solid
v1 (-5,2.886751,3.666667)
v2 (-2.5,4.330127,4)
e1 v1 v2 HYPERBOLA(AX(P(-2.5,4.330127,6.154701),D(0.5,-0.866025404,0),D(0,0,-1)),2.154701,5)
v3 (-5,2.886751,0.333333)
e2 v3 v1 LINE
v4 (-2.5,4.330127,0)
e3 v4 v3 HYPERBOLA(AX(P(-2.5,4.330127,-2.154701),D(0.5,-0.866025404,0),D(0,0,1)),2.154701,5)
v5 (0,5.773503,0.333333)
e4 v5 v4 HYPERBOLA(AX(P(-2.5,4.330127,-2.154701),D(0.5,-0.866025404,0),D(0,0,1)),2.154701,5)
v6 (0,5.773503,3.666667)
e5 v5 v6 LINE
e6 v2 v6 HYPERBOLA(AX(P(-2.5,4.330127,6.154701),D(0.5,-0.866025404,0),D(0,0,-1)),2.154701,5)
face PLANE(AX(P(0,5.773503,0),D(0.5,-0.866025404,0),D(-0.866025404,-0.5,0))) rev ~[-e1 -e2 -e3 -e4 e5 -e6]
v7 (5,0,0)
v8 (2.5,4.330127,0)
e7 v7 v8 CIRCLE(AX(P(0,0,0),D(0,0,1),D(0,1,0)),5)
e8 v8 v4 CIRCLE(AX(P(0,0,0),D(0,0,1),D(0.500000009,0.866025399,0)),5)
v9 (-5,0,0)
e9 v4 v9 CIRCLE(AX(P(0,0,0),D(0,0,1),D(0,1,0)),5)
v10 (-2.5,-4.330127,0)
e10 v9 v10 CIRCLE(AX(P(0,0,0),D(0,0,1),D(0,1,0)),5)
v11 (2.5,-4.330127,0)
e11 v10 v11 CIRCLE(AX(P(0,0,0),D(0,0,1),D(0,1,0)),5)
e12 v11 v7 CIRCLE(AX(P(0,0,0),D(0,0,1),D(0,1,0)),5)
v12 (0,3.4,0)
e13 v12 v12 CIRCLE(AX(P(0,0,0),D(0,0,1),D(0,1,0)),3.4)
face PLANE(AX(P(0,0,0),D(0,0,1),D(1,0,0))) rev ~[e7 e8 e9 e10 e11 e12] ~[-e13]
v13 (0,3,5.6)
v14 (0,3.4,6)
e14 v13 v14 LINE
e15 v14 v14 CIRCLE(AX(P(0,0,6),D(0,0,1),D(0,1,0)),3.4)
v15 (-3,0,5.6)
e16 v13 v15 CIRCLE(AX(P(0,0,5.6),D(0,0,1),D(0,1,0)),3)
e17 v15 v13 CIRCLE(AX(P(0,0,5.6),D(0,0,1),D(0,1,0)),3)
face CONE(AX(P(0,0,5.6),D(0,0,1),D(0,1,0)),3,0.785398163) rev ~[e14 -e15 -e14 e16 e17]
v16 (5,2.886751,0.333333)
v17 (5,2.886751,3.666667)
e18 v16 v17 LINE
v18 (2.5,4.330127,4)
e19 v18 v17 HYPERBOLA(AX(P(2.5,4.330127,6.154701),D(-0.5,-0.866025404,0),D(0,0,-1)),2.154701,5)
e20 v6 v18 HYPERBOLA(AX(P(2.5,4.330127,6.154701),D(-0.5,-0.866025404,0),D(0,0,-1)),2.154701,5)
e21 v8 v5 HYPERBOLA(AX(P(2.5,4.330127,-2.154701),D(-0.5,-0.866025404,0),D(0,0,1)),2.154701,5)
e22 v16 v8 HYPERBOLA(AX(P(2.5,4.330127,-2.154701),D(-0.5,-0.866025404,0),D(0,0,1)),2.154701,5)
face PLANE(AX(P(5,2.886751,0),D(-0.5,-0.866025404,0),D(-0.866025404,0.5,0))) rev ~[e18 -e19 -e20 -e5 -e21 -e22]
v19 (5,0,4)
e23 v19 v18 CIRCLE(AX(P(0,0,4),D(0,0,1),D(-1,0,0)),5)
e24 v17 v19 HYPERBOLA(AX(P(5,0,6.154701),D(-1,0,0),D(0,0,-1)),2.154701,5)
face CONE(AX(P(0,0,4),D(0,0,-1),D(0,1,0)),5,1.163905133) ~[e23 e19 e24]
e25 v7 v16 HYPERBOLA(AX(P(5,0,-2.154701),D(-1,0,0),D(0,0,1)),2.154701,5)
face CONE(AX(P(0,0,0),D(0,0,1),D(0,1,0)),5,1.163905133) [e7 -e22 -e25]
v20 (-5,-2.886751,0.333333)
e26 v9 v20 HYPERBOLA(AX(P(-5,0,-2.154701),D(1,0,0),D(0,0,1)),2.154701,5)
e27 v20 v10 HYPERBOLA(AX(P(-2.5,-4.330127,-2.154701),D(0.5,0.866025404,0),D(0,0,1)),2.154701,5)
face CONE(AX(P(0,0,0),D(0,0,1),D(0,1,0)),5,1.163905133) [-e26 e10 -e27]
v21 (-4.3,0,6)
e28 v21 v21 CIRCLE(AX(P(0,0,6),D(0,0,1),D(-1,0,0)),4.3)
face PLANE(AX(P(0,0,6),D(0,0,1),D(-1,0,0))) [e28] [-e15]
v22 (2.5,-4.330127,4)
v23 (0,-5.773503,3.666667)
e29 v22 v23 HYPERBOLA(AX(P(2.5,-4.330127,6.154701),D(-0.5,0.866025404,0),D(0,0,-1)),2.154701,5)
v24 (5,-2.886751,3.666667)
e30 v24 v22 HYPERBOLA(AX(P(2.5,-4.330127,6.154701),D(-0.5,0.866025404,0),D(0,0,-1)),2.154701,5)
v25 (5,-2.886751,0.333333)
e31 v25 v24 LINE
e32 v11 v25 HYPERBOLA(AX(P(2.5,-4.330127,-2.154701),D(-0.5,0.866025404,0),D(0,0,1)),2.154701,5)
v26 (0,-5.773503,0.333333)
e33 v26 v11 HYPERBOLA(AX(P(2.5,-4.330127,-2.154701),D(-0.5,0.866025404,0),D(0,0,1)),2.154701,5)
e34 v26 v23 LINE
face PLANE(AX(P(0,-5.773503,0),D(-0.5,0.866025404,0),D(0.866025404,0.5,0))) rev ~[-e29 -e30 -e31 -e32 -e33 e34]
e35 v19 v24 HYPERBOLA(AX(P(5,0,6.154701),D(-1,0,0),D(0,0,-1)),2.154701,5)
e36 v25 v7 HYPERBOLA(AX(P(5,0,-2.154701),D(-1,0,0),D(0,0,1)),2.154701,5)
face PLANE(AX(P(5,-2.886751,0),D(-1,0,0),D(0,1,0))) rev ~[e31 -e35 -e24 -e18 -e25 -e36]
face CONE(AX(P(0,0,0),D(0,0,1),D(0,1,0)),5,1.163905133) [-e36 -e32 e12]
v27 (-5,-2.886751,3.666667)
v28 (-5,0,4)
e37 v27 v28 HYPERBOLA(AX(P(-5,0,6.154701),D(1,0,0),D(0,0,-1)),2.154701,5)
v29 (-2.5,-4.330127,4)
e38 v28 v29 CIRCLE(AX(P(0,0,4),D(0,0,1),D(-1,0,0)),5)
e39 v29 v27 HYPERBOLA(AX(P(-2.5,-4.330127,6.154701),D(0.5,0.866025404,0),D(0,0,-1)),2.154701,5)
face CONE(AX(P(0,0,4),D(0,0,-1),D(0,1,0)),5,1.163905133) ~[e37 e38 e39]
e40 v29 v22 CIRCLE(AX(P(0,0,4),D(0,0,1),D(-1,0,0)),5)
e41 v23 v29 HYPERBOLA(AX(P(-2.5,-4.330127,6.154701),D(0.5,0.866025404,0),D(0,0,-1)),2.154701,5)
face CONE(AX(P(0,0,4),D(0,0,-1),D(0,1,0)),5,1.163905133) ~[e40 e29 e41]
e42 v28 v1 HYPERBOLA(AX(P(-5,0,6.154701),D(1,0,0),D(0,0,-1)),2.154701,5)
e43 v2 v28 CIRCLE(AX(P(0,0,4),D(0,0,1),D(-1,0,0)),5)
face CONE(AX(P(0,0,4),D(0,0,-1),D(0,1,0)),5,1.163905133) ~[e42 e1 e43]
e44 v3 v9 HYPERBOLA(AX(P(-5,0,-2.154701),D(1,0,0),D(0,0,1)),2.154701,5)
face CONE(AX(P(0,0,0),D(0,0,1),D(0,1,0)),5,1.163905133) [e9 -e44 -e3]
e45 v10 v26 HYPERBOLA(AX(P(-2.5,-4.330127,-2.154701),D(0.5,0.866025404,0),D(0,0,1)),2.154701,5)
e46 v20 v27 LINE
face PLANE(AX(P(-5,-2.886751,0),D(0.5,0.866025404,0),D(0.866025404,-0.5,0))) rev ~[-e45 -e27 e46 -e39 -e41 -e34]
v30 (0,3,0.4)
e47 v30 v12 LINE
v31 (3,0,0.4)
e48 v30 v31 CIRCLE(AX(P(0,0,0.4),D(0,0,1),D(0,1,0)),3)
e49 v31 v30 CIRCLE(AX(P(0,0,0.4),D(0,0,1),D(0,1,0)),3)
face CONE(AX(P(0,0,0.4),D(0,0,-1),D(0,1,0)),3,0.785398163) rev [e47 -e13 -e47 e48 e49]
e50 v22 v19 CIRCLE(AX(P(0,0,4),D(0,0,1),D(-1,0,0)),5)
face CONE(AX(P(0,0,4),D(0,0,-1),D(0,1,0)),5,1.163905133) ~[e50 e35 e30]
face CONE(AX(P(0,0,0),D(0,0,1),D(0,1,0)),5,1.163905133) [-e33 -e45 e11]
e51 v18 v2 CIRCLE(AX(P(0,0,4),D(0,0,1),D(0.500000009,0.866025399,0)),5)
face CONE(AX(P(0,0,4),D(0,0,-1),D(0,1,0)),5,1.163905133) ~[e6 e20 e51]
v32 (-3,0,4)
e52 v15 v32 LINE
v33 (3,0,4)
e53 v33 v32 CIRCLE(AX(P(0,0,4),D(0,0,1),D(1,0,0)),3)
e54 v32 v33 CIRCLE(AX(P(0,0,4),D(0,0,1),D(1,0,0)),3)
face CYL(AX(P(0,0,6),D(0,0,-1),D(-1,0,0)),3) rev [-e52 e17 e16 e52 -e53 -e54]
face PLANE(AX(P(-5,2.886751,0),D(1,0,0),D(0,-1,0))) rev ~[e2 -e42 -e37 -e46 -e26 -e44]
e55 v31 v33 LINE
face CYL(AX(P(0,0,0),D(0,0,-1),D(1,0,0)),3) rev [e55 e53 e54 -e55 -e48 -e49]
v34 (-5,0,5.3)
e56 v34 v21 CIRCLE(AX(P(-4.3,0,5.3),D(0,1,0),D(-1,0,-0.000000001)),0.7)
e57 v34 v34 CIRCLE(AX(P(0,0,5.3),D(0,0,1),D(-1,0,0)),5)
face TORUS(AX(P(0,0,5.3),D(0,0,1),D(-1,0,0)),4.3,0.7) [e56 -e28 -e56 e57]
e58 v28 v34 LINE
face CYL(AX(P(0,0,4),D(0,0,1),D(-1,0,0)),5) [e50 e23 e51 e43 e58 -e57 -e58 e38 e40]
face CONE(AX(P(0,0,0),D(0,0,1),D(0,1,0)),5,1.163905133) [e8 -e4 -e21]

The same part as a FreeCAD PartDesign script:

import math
import FreeCAD as App
import Part
import Sketcher

V = App.Vector
Q = App.Units.Quantity

doc = App.newDocument("Part")
body = doc.addObject("PartDesign::Body", "Body")

# Sketch on XY plane
sketch1 = body.newObject("Sketcher::SketchObject", "Sketch")
sketch1.AttachmentSupport = (doc.getObject("XY_Plane"), [""])
sketch1.MapMode = "FlatFace"
sketch1.addGeometry(Part.LineSegment(V(0, -5.773503, 0), V(5, -2.886751, 0)), False)
sketch1.addGeometry(Part.LineSegment(V(5, -2.886751, 0), V(5, 2.886751, 0)), False)
sketch1.addGeometry(Part.LineSegment(V(5, 2.886751, 0), V(0, 5.773503, 0)), False)
sketch1.addGeometry(Part.LineSegment(V(0, 5.773503, 0), V(-5, 2.886751, 0)), False)
sketch1.addGeometry(Part.LineSegment(V(-5, 2.886751, 0), V(-5, -2.886751, 0)), False)
sketch1.addGeometry(Part.LineSegment(V(-5, -2.886751, 0), V(0, -5.773503, 0)), False)
sketch1.addGeometry(Part.Circle(V(0, 0, 0), V(0, 0, 1), 3), False)
sketch1.addConstraint(Sketcher.Constraint("Coincident", 0, 2, 1, 1))
sketch1.addConstraint(Sketcher.Constraint("Coincident", 1, 2, 2, 1))
sketch1.addConstraint(Sketcher.Constraint("Coincident", 2, 2, 3, 1))
sketch1.addConstraint(Sketcher.Constraint("Coincident", 3, 2, 4, 1))
sketch1.addConstraint(Sketcher.Constraint("Coincident", 4, 2, 5, 1))
sketch1.addConstraint(Sketcher.Constraint("Coincident", 5, 2, 0, 1))
sketch1.addConstraint(Sketcher.Constraint("Vertical", 1))
sketch1.addConstraint(Sketcher.Constraint("Vertical", 4))
sketch1.addConstraint(Sketcher.Constraint("Coincident", 6, 3, -1, 1))
sketch1.addConstraint(Sketcher.Constraint("Symmetric", 0, 2, 3, 2, -1, 1))
sketch1.addConstraint(Sketcher.Constraint("Symmetric", 2, 2, 5, 2, -1, 1))
sketch1.addConstraint(Sketcher.Constraint("PointOnObject", 2, 2, -2))
sketch1.addConstraint(Sketcher.Constraint("Parallel", 2, 5))
sketch1.addConstraint(Sketcher.Constraint("Horizontal", 1, 2, 3, 2))
sketch1.addConstraint(Sketcher.Constraint("Diameter", 6, Q("6 mm")))
sketch1.addConstraint(Sketcher.Constraint("Angle", 0, Q("30 deg")))
sketch1.addConstraint(Sketcher.Constraint("DistanceX", -1, 1, 0, 2, Q("5 mm")))
sketch1.addConstraint(Sketcher.Constraint("DistanceY", 1, 1, 1, 2, Q("5.773503 mm")))
pad1 = body.newObject("PartDesign::Pad", "Pad")
pad1.Profile = sketch1
pad1.Length = 4

# Sketch on XZ plane
sketch2 = body.newObject("Sketcher::SketchObject", "Sketch001")
sketch2.AttachmentSupport = (doc.getObject("XZ_Plane"), [""])
sketch2.MapMode = "FlatFace"
sketch2.addGeometry(Part.LineSegment(V(-5, 4, 0), V(-5, 5.3, 0)), False)
sketch2.addGeometry(Part.ArcOfCircle(Part.Circle(V(-4.3, 5.3, 0), V(0, 0, 1), 0.7), math.radians(90), math.radians(180)), False)
sketch2.addGeometry(Part.LineSegment(V(-4.3, 6, 0), V(-3, 6, 0)), False)
sketch2.addGeometry(Part.LineSegment(V(-3, 6, 0), V(-3, 4, 0)), False)
sketch2.addGeometry(Part.LineSegment(V(-3, 4, 0), V(-5, 4, 0)), False)
sketch2.addConstraint(Sketcher.Constraint("Tangent", 0, 2, 1, 2))
sketch2.addConstraint(Sketcher.Constraint("Tangent", 1, 1, 2, 1))
sketch2.addConstraint(Sketcher.Constraint("Coincident", 2, 2, 3, 1))
sketch2.addConstraint(Sketcher.Constraint("Coincident", 3, 2, 4, 1))
sketch2.addConstraint(Sketcher.Constraint("Coincident", 4, 2, 0, 1))
sketch2.addConstraint(Sketcher.Constraint("Vertical", 0))
sketch2.addConstraint(Sketcher.Constraint("Horizontal", 2))
sketch2.addConstraint(Sketcher.Constraint("Vertical", 3))
sketch2.addConstraint(Sketcher.Constraint("Horizontal", 4))
sketch2.addConstraint(Sketcher.Constraint("Equal", 2, 0))
sketch2.addConstraint(Sketcher.Constraint("Radius", 1, Q("0.7 mm")))
sketch2.addConstraint(Sketcher.Constraint("DistanceX", 4, 2, 4, 1, Q("2 mm")))
sketch2.addConstraint(Sketcher.Constraint("DistanceX", 0, 2, -1, 1, Q("5 mm")))
sketch2.addConstraint(Sketcher.Constraint("DistanceY", -1, 1, 1, 1, Q("6 mm")))
revolution = body.newObject("PartDesign::Revolution", "Revolution")
revolution.Profile = sketch2
revolution.ReferenceAxis = (sketch2, ["V_Axis"])
revolution.Angle = 360

# Sketch on YZ plane
sketch3 = body.newObject("Sketcher::SketchObject", "Sketch002")
sketch3.AttachmentSupport = (doc.getObject("YZ_Plane"), [""])
sketch3.MapMode = "FlatFace"
sketch3.addGeometry(Part.LineSegment(V(5.773503, 4, 0), V(5, 4, 0)), False)
sketch3.addGeometry(Part.LineSegment(V(5, 4, 0), V(5.773503, 3.666667, 0)), False)
sketch3.addGeometry(Part.LineSegment(V(5.773503, 3.666667, 0), V(5.773503, 4, 0)), False)
sketch3.addGeometry(Part.LineSegment(V(5.773503, 0, 0), V(5.773503, 0.333333, 0)), False)
sketch3.addGeometry(Part.LineSegment(V(5.773503, 0.333333, 0), V(5, 0, 0)), False)
sketch3.addGeometry(Part.LineSegment(V(5, 0, 0), V(5.773503, 0, 0)), False)
sketch3.addGeometry(Part.LineSegment(V(3, 6, 0), V(3, 5.6, 0)), False)
sketch3.addGeometry(Part.LineSegment(V(3, 5.6, 0), V(3.4, 6, 0)), False)
sketch3.addGeometry(Part.LineSegment(V(3.4, 6, 0), V(3, 6, 0)), False)
sketch3.addGeometry(Part.LineSegment(V(3, 0.4, 0), V(3, 0, 0)), False)
sketch3.addGeometry(Part.LineSegment(V(3, 0, 0), V(3.4, 0, 0)), False)
sketch3.addGeometry(Part.LineSegment(V(3.4, 0, 0), V(3, 0.4, 0)), False)
sketch3.addConstraint(Sketcher.Constraint("Coincident", 0, 2, 1, 1))
sketch3.addConstraint(Sketcher.Constraint("Coincident", 1, 2, 2, 1))
sketch3.addConstraint(Sketcher.Constraint("Coincident", 2, 2, 0, 1))
sketch3.addConstraint(Sketcher.Constraint("Coincident", 3, 2, 4, 1))
sketch3.addConstraint(Sketcher.Constraint("Coincident", 4, 2, 5, 1))
sketch3.addConstraint(Sketcher.Constraint("Coincident", 5, 2, 3, 1))
sketch3.addConstraint(Sketcher.Constraint("Coincident", 6, 2, 7, 1))
sketch3.addConstraint(Sketcher.Constraint("Coincident", 7, 2, 8, 1))
sketch3.addConstraint(Sketcher.Constraint("Coincident", 8, 2, 6, 1))
sketch3.addConstraint(Sketcher.Constraint("Coincident", 9, 2, 10, 1))
sketch3.addConstraint(Sketcher.Constraint("Coincident", 10, 2, 11, 1))
sketch3.addConstraint(Sketcher.Constraint("Coincident", 11, 2, 9, 1))
sketch3.addConstraint(Sketcher.Constraint("Horizontal", 0))
sketch3.addConstraint(Sketcher.Constraint("Vertical", 2))
sketch3.addConstraint(Sketcher.Constraint("Vertical", 3))
sketch3.addConstraint(Sketcher.Constraint("Horizontal", 5))
sketch3.addConstraint(Sketcher.Constraint("Vertical", 6))
sketch3.addConstraint(Sketcher.Constraint("Horizontal", 8))
sketch3.addConstraint(Sketcher.Constraint("Vertical", 9))
sketch3.addConstraint(Sketcher.Constraint("Horizontal", 10))
sketch3.addConstraint(Sketcher.Constraint("PointOnObject", 4, 2, -1))
sketch3.addConstraint(Sketcher.Constraint("PointOnObject", 9, 2, -1))
sketch3.addConstraint(Sketcher.Constraint("Perpendicular", 7, 11))
sketch3.addConstraint(Sketcher.Constraint("Vertical", 2, 2, 3, 2))
sketch3.addConstraint(Sketcher.Constraint("Vertical", 0, 2, 4, 2))
sketch3.addConstraint(Sketcher.Constraint("Vertical", 8, 2, 9, 2))
sketch3.addConstraint(Sketcher.Constraint("Vertical", 7, 2, 10, 2))
sketch3.addConstraint(Sketcher.Constraint("Equal", 2, 3))
sketch3.addConstraint(Sketcher.Constraint("Equal", 10, 6))
sketch3.addConstraint(Sketcher.Constraint("DistanceX", 8, 2, 8, 1, Q("0.4 mm")))
sketch3.addConstraint(Sketcher.Constraint("DistanceX", -1, 1, 0, 2, Q("5 mm")))
sketch3.addConstraint(Sketcher.Constraint("DistanceY", -1, 1, 0, 2, Q("4 mm")))
sketch3.addConstraint(Sketcher.Constraint("DistanceX", -1, 1, 6, 2, Q("3 mm")))
sketch3.addConstraint(Sketcher.Constraint("DistanceY", -1, 1, 7, 2, Q("6 mm")))
sketch3.addConstraint(Sketcher.Constraint("Distance", 1, Q("0.842269 mm")))
sketch3.addConstraint(Sketcher.Constraint("DistanceX", 0, 2, 0, 1, Q("0.773503 mm")))
groove = body.newObject("PartDesign::Groove", "Groove")
groove.Profile = sketch3
groove.ReferenceAxis = (sketch3, ["V_Axis"])
groove.Angle = 360

doc.recompute()
